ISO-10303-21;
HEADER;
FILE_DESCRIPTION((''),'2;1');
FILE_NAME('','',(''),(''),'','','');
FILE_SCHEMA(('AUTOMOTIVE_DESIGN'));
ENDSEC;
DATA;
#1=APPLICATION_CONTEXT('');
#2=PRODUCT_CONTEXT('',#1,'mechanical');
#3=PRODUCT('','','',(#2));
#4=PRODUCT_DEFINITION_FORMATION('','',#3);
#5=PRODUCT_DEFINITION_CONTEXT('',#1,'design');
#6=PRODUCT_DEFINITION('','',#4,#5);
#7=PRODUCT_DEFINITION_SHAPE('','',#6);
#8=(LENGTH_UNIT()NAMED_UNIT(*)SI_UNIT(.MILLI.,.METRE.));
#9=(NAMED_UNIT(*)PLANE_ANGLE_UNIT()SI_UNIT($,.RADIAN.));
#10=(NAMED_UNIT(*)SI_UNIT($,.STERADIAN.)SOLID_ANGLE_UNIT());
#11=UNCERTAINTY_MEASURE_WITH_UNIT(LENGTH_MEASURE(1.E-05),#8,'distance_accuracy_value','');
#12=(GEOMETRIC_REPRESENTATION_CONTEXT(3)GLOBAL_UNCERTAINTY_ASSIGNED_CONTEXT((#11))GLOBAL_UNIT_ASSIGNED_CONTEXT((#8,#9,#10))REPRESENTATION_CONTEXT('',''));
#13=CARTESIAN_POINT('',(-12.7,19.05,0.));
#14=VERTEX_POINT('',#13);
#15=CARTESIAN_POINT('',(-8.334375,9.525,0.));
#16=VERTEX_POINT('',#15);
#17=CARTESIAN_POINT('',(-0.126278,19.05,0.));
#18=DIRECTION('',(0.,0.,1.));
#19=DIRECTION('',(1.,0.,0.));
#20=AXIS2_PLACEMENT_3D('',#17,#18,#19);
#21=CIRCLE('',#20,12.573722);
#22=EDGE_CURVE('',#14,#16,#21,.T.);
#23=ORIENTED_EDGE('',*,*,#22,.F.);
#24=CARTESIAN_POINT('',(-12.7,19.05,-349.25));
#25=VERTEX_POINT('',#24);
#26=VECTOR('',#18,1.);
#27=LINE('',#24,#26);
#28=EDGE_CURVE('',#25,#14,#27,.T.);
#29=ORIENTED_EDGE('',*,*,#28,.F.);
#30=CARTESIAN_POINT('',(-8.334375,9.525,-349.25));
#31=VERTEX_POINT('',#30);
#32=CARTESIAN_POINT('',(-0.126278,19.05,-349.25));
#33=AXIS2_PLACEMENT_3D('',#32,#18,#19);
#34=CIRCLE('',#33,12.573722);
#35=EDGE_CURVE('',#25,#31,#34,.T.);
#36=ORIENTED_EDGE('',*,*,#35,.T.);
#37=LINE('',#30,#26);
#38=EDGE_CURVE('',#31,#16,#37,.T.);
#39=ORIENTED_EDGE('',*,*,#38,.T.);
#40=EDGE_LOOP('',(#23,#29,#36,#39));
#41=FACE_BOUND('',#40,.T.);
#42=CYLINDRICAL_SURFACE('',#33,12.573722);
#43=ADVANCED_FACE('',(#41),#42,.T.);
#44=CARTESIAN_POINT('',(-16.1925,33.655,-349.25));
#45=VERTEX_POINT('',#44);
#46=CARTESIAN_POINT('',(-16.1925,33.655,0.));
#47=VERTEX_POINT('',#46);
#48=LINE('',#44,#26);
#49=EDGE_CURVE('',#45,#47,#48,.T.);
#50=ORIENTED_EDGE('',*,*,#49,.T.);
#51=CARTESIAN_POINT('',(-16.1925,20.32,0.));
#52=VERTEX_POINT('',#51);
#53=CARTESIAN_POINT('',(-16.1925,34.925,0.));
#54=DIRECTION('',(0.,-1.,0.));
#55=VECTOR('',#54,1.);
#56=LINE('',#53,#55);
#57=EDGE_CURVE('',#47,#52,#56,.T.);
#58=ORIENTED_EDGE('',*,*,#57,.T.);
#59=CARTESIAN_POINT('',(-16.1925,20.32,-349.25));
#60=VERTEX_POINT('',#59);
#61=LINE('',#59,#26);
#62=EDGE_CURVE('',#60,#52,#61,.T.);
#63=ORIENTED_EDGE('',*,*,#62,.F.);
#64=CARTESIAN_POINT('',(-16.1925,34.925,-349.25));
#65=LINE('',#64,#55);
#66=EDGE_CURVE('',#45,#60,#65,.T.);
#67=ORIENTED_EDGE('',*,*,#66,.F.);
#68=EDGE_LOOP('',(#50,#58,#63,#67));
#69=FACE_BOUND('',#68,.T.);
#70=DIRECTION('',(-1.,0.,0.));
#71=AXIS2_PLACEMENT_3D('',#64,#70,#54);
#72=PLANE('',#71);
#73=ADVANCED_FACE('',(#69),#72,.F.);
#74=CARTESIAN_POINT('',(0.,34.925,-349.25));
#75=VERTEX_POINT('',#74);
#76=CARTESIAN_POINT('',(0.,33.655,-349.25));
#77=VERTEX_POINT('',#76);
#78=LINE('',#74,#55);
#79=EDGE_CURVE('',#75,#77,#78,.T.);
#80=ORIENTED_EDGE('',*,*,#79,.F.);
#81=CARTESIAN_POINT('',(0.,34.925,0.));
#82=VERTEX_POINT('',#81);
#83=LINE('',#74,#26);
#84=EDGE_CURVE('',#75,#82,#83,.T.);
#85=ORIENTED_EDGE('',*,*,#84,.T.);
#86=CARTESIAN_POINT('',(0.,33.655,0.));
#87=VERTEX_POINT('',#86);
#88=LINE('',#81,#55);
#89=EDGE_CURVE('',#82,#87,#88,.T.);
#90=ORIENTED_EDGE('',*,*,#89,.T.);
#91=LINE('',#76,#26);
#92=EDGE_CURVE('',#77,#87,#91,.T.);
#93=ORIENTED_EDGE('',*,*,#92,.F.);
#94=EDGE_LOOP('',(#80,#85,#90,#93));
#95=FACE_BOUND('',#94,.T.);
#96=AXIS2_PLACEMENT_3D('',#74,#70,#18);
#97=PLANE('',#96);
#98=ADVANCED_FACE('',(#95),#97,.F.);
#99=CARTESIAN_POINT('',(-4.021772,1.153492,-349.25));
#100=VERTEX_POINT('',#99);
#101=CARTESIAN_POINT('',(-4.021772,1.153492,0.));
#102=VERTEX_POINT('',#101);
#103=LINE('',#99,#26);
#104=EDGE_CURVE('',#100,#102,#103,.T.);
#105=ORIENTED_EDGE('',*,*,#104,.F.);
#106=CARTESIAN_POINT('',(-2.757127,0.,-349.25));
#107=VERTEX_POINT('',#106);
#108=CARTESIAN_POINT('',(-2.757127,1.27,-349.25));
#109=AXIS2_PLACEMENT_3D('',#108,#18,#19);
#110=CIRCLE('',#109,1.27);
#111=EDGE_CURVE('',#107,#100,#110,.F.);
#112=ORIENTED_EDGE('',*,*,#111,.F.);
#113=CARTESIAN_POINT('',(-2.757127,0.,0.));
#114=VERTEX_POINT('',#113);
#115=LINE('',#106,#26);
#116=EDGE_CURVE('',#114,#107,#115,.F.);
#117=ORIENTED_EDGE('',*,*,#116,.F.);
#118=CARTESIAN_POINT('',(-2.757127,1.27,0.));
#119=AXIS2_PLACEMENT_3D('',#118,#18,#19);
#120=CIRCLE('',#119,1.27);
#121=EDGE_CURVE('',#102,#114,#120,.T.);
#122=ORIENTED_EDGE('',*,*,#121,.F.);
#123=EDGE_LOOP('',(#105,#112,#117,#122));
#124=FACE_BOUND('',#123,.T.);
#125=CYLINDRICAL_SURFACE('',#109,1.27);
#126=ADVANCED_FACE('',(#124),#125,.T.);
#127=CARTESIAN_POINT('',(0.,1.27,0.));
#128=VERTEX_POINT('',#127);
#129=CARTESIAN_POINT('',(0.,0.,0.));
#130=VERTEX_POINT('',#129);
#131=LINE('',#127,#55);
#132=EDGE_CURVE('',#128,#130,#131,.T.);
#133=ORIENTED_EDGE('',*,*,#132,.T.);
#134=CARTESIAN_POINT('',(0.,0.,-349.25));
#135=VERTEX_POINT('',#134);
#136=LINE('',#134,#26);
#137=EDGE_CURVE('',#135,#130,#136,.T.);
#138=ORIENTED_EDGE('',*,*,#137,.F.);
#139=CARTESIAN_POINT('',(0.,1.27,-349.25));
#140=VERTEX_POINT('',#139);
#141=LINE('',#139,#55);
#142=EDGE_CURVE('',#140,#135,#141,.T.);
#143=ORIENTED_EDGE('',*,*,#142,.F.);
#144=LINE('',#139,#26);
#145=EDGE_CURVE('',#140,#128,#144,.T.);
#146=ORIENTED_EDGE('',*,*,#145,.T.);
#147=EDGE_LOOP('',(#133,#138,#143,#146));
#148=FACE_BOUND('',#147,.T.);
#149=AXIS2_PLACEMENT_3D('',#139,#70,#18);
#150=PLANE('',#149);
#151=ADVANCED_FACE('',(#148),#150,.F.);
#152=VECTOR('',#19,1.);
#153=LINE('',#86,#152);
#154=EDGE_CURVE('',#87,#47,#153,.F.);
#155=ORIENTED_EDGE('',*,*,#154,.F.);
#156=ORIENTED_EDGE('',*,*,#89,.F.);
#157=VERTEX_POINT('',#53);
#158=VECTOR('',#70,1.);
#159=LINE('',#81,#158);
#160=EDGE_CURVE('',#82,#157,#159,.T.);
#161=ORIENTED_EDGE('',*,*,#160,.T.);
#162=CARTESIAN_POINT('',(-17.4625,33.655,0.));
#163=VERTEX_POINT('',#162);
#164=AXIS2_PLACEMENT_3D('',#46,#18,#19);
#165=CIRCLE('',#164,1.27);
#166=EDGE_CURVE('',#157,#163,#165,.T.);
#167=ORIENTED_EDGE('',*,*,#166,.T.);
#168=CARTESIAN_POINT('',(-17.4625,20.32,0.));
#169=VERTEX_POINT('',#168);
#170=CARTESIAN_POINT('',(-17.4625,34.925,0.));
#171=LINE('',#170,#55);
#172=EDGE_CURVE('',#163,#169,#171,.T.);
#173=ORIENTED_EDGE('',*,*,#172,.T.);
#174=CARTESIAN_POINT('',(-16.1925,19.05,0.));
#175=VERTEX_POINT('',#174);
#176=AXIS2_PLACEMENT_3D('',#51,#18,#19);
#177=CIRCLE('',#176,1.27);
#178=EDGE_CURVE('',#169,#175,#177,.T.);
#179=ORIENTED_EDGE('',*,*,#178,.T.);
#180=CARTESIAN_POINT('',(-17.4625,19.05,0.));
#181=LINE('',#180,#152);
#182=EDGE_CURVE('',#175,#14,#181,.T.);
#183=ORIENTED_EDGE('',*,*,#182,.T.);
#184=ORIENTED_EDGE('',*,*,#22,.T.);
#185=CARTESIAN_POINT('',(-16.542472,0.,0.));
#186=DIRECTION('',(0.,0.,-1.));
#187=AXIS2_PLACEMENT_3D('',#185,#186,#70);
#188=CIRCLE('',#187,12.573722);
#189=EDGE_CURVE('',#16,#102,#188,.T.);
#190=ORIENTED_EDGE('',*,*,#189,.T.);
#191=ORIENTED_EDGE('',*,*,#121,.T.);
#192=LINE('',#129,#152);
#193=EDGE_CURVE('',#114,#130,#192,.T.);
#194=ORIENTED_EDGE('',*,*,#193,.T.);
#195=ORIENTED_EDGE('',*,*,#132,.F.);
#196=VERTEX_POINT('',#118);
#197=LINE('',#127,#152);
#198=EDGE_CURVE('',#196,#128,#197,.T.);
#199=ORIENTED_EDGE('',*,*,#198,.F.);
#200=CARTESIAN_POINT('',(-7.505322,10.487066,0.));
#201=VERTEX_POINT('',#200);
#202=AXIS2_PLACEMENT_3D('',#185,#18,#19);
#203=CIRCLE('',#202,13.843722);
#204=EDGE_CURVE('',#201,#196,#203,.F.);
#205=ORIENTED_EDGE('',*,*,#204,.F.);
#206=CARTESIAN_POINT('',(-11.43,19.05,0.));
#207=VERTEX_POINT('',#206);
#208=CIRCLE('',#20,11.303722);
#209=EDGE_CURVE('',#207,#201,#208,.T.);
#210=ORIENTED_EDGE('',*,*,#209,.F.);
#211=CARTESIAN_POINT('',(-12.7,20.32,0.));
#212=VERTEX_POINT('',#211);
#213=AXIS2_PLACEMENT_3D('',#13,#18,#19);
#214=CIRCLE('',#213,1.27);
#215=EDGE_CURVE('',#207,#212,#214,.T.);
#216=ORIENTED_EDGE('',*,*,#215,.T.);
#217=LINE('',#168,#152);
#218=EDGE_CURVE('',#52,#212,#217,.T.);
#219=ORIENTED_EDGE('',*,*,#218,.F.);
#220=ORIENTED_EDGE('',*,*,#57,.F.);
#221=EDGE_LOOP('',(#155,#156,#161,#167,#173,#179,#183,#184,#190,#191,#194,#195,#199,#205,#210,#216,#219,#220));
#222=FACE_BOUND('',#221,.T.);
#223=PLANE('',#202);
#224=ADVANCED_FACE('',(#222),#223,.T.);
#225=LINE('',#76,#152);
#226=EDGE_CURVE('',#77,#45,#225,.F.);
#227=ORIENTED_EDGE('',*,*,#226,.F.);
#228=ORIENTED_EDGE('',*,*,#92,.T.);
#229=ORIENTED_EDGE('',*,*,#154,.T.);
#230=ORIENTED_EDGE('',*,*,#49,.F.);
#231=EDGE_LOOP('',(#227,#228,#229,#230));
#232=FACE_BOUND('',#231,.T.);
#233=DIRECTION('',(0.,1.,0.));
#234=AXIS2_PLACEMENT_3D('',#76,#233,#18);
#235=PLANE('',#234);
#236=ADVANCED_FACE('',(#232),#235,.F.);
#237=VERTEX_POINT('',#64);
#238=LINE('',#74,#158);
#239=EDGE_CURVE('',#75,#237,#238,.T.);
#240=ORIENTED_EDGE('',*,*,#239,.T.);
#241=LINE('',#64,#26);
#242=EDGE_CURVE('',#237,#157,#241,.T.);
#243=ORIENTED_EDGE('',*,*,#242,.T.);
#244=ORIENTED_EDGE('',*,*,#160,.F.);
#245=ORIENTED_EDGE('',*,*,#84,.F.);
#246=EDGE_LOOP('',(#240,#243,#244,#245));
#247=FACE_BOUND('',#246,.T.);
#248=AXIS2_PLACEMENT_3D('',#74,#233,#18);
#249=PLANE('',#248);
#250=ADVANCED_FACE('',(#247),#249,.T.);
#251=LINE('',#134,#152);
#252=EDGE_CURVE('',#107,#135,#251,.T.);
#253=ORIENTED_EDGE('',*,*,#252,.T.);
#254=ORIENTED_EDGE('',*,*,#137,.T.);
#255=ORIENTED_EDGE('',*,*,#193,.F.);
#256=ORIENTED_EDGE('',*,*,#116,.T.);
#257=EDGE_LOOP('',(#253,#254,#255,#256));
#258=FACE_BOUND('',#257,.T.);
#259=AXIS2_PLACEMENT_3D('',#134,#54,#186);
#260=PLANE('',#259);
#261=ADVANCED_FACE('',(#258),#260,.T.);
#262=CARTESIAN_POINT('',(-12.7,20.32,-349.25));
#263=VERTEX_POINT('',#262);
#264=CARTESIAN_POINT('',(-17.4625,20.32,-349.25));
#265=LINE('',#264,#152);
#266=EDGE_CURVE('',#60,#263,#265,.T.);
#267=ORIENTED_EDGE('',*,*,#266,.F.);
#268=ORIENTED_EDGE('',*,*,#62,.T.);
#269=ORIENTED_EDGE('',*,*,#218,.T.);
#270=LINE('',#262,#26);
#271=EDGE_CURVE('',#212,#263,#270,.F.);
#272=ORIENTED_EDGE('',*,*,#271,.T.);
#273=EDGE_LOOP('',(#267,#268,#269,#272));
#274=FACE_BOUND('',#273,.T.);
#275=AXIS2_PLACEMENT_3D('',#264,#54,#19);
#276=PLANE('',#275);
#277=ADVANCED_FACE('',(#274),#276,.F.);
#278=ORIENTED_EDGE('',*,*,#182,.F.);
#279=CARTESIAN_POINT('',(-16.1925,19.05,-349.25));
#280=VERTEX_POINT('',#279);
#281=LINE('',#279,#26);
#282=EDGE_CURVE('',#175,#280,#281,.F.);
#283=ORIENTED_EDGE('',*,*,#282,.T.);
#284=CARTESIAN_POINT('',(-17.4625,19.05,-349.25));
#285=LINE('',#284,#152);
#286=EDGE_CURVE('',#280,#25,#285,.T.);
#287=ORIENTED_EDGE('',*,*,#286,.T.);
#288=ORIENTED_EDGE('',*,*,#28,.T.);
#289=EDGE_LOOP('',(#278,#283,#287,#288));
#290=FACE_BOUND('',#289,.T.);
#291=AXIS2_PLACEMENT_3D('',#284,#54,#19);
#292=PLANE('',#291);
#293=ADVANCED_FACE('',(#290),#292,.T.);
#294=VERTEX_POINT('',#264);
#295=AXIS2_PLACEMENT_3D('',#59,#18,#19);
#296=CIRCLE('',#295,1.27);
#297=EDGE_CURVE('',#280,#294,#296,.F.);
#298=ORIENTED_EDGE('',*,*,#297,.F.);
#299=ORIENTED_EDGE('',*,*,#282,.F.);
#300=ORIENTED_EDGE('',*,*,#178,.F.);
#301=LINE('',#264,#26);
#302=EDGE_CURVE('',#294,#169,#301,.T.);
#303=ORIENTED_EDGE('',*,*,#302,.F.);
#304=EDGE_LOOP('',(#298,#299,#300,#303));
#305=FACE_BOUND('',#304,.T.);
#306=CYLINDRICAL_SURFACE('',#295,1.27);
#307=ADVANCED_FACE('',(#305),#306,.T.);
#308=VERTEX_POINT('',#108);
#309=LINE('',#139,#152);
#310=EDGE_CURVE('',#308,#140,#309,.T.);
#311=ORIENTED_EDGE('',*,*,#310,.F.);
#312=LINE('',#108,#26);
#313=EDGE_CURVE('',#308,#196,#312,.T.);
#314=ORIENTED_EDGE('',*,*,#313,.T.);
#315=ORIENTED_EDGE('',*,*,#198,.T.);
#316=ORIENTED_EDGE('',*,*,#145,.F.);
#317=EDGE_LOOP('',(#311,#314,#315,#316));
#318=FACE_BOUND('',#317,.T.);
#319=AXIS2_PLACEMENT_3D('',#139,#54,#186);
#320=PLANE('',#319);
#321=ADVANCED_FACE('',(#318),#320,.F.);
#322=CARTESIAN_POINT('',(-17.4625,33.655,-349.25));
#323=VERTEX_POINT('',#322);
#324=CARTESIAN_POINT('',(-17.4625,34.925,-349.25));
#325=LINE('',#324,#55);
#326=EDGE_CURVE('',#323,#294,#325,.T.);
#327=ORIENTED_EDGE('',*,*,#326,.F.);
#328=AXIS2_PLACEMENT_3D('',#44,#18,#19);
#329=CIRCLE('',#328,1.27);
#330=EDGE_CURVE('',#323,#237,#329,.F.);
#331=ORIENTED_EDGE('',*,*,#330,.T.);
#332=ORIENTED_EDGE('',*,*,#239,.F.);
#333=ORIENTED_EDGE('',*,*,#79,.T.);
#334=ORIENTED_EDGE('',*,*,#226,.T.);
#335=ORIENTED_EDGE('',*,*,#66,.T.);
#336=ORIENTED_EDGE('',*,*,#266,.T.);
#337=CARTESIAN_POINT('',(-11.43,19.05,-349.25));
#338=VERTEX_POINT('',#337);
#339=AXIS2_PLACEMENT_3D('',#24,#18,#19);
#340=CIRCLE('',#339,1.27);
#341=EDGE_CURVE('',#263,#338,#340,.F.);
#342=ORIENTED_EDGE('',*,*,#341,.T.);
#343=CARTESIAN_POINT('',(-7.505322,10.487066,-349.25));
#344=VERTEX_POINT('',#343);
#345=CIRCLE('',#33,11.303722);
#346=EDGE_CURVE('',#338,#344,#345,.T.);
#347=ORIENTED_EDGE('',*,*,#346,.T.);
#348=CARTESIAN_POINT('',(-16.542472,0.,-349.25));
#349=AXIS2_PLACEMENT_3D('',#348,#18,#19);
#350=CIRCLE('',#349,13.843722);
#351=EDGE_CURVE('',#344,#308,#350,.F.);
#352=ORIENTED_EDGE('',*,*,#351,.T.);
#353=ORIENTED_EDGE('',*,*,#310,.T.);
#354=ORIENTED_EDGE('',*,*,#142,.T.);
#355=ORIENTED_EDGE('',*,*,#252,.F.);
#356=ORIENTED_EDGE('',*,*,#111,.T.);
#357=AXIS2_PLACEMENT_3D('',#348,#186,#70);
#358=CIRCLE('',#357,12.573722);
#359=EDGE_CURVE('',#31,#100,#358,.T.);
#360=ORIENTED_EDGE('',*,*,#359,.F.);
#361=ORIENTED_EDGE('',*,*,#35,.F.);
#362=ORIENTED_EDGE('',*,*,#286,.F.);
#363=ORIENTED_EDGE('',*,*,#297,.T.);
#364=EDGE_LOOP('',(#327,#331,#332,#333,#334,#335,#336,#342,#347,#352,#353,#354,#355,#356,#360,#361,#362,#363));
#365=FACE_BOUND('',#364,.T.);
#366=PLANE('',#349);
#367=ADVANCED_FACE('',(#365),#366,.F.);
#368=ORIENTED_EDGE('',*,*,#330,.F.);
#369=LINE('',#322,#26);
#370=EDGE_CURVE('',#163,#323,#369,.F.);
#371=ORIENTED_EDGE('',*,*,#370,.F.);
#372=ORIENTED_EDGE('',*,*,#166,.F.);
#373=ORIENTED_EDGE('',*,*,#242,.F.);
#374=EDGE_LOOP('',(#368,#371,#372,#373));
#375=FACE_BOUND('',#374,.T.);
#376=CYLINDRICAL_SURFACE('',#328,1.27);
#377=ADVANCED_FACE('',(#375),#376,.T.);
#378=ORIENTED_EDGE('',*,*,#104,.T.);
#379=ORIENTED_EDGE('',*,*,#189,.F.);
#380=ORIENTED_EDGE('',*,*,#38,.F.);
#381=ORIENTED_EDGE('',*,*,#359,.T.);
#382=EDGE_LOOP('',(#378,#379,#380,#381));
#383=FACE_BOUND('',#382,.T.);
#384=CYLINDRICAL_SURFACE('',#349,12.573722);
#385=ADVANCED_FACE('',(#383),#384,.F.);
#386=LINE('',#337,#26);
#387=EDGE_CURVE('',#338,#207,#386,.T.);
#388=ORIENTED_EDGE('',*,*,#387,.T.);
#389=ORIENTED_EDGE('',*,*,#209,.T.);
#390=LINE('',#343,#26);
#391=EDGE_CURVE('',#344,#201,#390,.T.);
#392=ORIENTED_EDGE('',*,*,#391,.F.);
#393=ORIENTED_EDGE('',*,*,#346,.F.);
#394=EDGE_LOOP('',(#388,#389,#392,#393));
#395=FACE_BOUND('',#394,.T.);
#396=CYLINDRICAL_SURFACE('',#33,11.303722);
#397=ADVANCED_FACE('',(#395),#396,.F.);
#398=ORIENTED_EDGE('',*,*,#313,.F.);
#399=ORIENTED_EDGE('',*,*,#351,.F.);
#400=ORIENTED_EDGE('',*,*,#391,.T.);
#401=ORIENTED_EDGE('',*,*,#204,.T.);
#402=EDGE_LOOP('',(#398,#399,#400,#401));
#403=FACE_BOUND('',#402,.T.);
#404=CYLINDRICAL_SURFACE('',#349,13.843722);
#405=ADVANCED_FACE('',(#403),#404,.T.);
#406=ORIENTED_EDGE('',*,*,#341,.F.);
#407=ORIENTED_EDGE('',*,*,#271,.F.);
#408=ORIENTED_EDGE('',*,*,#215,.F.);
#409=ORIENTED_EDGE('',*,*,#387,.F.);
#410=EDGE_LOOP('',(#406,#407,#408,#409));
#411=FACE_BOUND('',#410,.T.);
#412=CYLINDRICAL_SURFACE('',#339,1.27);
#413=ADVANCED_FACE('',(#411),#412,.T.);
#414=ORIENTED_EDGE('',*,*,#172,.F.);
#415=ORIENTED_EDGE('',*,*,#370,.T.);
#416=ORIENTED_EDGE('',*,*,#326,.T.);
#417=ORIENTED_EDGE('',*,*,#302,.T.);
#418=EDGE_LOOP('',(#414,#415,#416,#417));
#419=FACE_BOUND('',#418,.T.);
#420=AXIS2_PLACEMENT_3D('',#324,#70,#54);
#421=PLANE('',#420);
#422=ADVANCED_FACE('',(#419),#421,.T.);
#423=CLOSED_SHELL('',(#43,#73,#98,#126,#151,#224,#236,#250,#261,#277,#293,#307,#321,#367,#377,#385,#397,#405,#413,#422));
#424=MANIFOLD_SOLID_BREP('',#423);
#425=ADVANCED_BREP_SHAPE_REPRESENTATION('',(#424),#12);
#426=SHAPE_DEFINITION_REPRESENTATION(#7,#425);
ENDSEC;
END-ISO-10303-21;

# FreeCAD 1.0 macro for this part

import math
import FreeCAD as App
import Part
import Sketcher

V = App.Vector
Q = App.Units.Quantity


def edges_at(feature, points):
    """Names of the edges that pass closest to the given points."""
    edges = feature.Shape.Edges
    near = lambda p: min(range(len(edges)), key=lambda i: edges[i].distToShape(Part.Vertex(*p))[0])
    return sorted({f"Edge{near(p) + 1}" for p in points})

doc = App.newDocument("Part")
body = doc.addObject("PartDesign::Body", "Body")

# Sketch on XY plane
sketch1 = doc.addObject("Sketcher::SketchObject", "Sketch")
body.addObject(sketch1)
sketch1.AttachmentSupport = (doc.XY_Plane, [""])
sketch1.MapMode = "FlatFace"
sketch1.addGeometry(Part.LineSegment(V(0, 34.9, 0), V(-17.5, 34.9, 0)), False)
sketch1.addGeometry(Part.LineSegment(V(-17.5, 34.9, 0), V(-17.5, 19.1, 0)), False)
sketch1.addGeometry(Part.LineSegment(V(-17.5, 19.1, 0), V(-12.7, 19.1, 0)), False)
sketch1.addGeometry(Part.ArcOfCircle(Part.Circle(V(-0.1, 19.1, 0), V(0, 0, 1), 12.6), math.radians(-180), math.radians(-131)), False)
sketch1.addGeometry(Part.ArcOfCircle(Part.Circle(V(-16.5, 0, 0), V(0, 0, 1), 12.6), math.radians(0), math.radians(49)), False)
sketch1.addGeometry(Part.LineSegment(V(-4, 0, 0), V(0, 0, 0)), False)
sketch1.addGeometry(Part.LineSegment(V(0, 0, 0), V(0, 1.3, 0)), False)
sketch1.addGeometry(Part.LineSegment(V(0, 1.3, 0), V(-2.8, 1.3, 0)), False)
sketch1.addGeometry(Part.ArcOfCircle(Part.Circle(V(-16.5, 0, 0), V(0, 0, 1), 13.8), math.radians(5), math.radians(49)), False)
sketch1.addGeometry(Part.ArcOfCircle(Part.Circle(V(-0.1, 19.1, 0), V(0, 0, 1), 11.3), math.radians(174), math.radians(229)), False)
sketch1.addGeometry(Part.LineSegment(V(-11.4, 20.3, 0), V(-16.2, 20.3, 0)), False)
sketch1.addGeometry(Part.LineSegment(V(-16.2, 20.3, 0), V(-16.2, 33.7, 0)), False)
sketch1.addGeometry(Part.LineSegment(V(-16.2, 33.7, 0), V(0, 33.7, 0)), False)
sketch1.addGeometry(Part.LineSegment(V(0, 33.7, 0), V(0, 34.9, 0)), False)
sketch1.addConstraint(Sketcher.Constraint("Coincident", 0, 2, 1, 1))
sketch1.addConstraint(Sketcher.Constraint("Coincident", 1, 2, 2, 1))
sketch1.addConstraint(Sketcher.Constraint("Coincident", 2, 2, 3, 1))
sketch1.addConstraint(Sketcher.Constraint("Tangent", 3, 2, 4, 2))
sketch1.addConstraint(Sketcher.Constraint("Coincident", 4, 1, 5, 1))
sketch1.addConstraint(Sketcher.Constraint("Coincident", 5, 2, 6, 1))
sketch1.addConstraint(Sketcher.Constraint("Coincident", 6, 2, 7, 1))
sketch1.addConstraint(Sketcher.Constraint("Coincident", 7, 2, 8, 1))
sketch1.addConstraint(Sketcher.Constraint("Tangent", 8, 2, 9, 2))
sketch1.addConstraint(Sketcher.Constraint("Coincident", 9, 1, 10, 1))
sketch1.addConstraint(Sketcher.Constraint("Coincident", 10, 2, 11, 1))
sketch1.addConstraint(Sketcher.Constraint("Coincident", 11, 2, 12, 1))
sketch1.addConstraint(Sketcher.Constraint("Coincident", 12, 2, 13, 1))
sketch1.addConstraint(Sketcher.Constraint("Coincident", 13, 2, 0, 1))
sketch1.addConstraint(Sketcher.Constraint("Horizontal", 0))
sketch1.addConstraint(Sketcher.Constraint("Vertical", 1))
sketch1.addConstraint(Sketcher.Constraint("Horizontal", 2))
sketch1.addConstraint(Sketcher.Constraint("Horizontal", 5))
sketch1.addConstraint(Sketcher.Constraint("Vertical", 6))
sketch1.addConstraint(Sketcher.Constraint("Horizontal", 7))
sketch1.addConstraint(Sketcher.Constraint("Horizontal", 10))
sketch1.addConstraint(Sketcher.Constraint("Vertical", 11))
sketch1.addConstraint(Sketcher.Constraint("Horizontal", 12))
sketch1.addConstraint(Sketcher.Constraint("Vertical", 13))
sketch1.addConstraint(Sketcher.Constraint("Coincident", 5, 2, -1, 1))
sketch1.addConstraint(Sketcher.Constraint("Coincident", 8, 3, 4, 3))
sketch1.addConstraint(Sketcher.Constraint("Coincident", 9, 3, 3, 3))
sketch1.addConstraint(Sketcher.Constraint("Equal", 3, 4))
sketch1.addConstraint(Sketcher.Constraint("PointOnObject", 4, 3, -1))
sketch1.addConstraint(Sketcher.Constraint("PointOnObject", 12, 2, -2))
sketch1.addConstraint(Sketcher.Constraint("Horizontal", 9, 3, 1, 2))
sketch1.addConstraint(Sketcher.Constraint("Equal", 6, 13))
sketch1.addConstraint(Sketcher.Constraint("DistanceY", 6, 1, 6, 2, Q("0.05 in")))
sketch1.addConstraint(Sketcher.Constraint("DistanceX", 2, 2, -1, 1, Q("0.5 in")))
sketch1.addConstraint(Sketcher.Constraint("DistanceY", -1, 1, 9, 1, Q("0.8 in")))
sketch1.addConstraint(Sketcher.Constraint("DistanceX", 0, 2, 0, 1, Q("0.6875 in")))
sketch1.addConstraint(Sketcher.Constraint("DistanceX", 5, 1, 5, 2, Q("0.15625 in")))
sketch1.addConstraint(Sketcher.Constraint("DistanceY", 1, 2, 1, 1, Q("0.625 in")))
sketch1.addConstraint(Sketcher.Constraint("DistanceY", 11, 1, 11, 2, Q("0.525 in")))
sketch1.addConstraint(Sketcher.Constraint("DistanceX", 1, 2, 10, 2, Q("0.05 in")))
sketch1.addConstraint(Sketcher.Constraint("Radius", 8, Q("13.843722 mm")))
pad1 = doc.addObject("PartDesign::Pad", "Pad")
body.addObject(pad1)
pad1.Profile = sketch1
pad1.Length = Q("13.75 in")
pad1.Reversed = True
doc.recompute()

fillet = doc.addObject("PartDesign::Fillet", "Fillet")
body.addObject(fillet)
fillet.Base = (pad1, edges_at(pad1, [
    (-3.969, 0, -174.625),
    (-17.462, 19.05, -174.625),
    (-17.462, 34.925, -174.625),
    (-11.358, 20.32, -174.625),
]))
fillet.Radius = Q("0.05 in")

doc.recompute()
